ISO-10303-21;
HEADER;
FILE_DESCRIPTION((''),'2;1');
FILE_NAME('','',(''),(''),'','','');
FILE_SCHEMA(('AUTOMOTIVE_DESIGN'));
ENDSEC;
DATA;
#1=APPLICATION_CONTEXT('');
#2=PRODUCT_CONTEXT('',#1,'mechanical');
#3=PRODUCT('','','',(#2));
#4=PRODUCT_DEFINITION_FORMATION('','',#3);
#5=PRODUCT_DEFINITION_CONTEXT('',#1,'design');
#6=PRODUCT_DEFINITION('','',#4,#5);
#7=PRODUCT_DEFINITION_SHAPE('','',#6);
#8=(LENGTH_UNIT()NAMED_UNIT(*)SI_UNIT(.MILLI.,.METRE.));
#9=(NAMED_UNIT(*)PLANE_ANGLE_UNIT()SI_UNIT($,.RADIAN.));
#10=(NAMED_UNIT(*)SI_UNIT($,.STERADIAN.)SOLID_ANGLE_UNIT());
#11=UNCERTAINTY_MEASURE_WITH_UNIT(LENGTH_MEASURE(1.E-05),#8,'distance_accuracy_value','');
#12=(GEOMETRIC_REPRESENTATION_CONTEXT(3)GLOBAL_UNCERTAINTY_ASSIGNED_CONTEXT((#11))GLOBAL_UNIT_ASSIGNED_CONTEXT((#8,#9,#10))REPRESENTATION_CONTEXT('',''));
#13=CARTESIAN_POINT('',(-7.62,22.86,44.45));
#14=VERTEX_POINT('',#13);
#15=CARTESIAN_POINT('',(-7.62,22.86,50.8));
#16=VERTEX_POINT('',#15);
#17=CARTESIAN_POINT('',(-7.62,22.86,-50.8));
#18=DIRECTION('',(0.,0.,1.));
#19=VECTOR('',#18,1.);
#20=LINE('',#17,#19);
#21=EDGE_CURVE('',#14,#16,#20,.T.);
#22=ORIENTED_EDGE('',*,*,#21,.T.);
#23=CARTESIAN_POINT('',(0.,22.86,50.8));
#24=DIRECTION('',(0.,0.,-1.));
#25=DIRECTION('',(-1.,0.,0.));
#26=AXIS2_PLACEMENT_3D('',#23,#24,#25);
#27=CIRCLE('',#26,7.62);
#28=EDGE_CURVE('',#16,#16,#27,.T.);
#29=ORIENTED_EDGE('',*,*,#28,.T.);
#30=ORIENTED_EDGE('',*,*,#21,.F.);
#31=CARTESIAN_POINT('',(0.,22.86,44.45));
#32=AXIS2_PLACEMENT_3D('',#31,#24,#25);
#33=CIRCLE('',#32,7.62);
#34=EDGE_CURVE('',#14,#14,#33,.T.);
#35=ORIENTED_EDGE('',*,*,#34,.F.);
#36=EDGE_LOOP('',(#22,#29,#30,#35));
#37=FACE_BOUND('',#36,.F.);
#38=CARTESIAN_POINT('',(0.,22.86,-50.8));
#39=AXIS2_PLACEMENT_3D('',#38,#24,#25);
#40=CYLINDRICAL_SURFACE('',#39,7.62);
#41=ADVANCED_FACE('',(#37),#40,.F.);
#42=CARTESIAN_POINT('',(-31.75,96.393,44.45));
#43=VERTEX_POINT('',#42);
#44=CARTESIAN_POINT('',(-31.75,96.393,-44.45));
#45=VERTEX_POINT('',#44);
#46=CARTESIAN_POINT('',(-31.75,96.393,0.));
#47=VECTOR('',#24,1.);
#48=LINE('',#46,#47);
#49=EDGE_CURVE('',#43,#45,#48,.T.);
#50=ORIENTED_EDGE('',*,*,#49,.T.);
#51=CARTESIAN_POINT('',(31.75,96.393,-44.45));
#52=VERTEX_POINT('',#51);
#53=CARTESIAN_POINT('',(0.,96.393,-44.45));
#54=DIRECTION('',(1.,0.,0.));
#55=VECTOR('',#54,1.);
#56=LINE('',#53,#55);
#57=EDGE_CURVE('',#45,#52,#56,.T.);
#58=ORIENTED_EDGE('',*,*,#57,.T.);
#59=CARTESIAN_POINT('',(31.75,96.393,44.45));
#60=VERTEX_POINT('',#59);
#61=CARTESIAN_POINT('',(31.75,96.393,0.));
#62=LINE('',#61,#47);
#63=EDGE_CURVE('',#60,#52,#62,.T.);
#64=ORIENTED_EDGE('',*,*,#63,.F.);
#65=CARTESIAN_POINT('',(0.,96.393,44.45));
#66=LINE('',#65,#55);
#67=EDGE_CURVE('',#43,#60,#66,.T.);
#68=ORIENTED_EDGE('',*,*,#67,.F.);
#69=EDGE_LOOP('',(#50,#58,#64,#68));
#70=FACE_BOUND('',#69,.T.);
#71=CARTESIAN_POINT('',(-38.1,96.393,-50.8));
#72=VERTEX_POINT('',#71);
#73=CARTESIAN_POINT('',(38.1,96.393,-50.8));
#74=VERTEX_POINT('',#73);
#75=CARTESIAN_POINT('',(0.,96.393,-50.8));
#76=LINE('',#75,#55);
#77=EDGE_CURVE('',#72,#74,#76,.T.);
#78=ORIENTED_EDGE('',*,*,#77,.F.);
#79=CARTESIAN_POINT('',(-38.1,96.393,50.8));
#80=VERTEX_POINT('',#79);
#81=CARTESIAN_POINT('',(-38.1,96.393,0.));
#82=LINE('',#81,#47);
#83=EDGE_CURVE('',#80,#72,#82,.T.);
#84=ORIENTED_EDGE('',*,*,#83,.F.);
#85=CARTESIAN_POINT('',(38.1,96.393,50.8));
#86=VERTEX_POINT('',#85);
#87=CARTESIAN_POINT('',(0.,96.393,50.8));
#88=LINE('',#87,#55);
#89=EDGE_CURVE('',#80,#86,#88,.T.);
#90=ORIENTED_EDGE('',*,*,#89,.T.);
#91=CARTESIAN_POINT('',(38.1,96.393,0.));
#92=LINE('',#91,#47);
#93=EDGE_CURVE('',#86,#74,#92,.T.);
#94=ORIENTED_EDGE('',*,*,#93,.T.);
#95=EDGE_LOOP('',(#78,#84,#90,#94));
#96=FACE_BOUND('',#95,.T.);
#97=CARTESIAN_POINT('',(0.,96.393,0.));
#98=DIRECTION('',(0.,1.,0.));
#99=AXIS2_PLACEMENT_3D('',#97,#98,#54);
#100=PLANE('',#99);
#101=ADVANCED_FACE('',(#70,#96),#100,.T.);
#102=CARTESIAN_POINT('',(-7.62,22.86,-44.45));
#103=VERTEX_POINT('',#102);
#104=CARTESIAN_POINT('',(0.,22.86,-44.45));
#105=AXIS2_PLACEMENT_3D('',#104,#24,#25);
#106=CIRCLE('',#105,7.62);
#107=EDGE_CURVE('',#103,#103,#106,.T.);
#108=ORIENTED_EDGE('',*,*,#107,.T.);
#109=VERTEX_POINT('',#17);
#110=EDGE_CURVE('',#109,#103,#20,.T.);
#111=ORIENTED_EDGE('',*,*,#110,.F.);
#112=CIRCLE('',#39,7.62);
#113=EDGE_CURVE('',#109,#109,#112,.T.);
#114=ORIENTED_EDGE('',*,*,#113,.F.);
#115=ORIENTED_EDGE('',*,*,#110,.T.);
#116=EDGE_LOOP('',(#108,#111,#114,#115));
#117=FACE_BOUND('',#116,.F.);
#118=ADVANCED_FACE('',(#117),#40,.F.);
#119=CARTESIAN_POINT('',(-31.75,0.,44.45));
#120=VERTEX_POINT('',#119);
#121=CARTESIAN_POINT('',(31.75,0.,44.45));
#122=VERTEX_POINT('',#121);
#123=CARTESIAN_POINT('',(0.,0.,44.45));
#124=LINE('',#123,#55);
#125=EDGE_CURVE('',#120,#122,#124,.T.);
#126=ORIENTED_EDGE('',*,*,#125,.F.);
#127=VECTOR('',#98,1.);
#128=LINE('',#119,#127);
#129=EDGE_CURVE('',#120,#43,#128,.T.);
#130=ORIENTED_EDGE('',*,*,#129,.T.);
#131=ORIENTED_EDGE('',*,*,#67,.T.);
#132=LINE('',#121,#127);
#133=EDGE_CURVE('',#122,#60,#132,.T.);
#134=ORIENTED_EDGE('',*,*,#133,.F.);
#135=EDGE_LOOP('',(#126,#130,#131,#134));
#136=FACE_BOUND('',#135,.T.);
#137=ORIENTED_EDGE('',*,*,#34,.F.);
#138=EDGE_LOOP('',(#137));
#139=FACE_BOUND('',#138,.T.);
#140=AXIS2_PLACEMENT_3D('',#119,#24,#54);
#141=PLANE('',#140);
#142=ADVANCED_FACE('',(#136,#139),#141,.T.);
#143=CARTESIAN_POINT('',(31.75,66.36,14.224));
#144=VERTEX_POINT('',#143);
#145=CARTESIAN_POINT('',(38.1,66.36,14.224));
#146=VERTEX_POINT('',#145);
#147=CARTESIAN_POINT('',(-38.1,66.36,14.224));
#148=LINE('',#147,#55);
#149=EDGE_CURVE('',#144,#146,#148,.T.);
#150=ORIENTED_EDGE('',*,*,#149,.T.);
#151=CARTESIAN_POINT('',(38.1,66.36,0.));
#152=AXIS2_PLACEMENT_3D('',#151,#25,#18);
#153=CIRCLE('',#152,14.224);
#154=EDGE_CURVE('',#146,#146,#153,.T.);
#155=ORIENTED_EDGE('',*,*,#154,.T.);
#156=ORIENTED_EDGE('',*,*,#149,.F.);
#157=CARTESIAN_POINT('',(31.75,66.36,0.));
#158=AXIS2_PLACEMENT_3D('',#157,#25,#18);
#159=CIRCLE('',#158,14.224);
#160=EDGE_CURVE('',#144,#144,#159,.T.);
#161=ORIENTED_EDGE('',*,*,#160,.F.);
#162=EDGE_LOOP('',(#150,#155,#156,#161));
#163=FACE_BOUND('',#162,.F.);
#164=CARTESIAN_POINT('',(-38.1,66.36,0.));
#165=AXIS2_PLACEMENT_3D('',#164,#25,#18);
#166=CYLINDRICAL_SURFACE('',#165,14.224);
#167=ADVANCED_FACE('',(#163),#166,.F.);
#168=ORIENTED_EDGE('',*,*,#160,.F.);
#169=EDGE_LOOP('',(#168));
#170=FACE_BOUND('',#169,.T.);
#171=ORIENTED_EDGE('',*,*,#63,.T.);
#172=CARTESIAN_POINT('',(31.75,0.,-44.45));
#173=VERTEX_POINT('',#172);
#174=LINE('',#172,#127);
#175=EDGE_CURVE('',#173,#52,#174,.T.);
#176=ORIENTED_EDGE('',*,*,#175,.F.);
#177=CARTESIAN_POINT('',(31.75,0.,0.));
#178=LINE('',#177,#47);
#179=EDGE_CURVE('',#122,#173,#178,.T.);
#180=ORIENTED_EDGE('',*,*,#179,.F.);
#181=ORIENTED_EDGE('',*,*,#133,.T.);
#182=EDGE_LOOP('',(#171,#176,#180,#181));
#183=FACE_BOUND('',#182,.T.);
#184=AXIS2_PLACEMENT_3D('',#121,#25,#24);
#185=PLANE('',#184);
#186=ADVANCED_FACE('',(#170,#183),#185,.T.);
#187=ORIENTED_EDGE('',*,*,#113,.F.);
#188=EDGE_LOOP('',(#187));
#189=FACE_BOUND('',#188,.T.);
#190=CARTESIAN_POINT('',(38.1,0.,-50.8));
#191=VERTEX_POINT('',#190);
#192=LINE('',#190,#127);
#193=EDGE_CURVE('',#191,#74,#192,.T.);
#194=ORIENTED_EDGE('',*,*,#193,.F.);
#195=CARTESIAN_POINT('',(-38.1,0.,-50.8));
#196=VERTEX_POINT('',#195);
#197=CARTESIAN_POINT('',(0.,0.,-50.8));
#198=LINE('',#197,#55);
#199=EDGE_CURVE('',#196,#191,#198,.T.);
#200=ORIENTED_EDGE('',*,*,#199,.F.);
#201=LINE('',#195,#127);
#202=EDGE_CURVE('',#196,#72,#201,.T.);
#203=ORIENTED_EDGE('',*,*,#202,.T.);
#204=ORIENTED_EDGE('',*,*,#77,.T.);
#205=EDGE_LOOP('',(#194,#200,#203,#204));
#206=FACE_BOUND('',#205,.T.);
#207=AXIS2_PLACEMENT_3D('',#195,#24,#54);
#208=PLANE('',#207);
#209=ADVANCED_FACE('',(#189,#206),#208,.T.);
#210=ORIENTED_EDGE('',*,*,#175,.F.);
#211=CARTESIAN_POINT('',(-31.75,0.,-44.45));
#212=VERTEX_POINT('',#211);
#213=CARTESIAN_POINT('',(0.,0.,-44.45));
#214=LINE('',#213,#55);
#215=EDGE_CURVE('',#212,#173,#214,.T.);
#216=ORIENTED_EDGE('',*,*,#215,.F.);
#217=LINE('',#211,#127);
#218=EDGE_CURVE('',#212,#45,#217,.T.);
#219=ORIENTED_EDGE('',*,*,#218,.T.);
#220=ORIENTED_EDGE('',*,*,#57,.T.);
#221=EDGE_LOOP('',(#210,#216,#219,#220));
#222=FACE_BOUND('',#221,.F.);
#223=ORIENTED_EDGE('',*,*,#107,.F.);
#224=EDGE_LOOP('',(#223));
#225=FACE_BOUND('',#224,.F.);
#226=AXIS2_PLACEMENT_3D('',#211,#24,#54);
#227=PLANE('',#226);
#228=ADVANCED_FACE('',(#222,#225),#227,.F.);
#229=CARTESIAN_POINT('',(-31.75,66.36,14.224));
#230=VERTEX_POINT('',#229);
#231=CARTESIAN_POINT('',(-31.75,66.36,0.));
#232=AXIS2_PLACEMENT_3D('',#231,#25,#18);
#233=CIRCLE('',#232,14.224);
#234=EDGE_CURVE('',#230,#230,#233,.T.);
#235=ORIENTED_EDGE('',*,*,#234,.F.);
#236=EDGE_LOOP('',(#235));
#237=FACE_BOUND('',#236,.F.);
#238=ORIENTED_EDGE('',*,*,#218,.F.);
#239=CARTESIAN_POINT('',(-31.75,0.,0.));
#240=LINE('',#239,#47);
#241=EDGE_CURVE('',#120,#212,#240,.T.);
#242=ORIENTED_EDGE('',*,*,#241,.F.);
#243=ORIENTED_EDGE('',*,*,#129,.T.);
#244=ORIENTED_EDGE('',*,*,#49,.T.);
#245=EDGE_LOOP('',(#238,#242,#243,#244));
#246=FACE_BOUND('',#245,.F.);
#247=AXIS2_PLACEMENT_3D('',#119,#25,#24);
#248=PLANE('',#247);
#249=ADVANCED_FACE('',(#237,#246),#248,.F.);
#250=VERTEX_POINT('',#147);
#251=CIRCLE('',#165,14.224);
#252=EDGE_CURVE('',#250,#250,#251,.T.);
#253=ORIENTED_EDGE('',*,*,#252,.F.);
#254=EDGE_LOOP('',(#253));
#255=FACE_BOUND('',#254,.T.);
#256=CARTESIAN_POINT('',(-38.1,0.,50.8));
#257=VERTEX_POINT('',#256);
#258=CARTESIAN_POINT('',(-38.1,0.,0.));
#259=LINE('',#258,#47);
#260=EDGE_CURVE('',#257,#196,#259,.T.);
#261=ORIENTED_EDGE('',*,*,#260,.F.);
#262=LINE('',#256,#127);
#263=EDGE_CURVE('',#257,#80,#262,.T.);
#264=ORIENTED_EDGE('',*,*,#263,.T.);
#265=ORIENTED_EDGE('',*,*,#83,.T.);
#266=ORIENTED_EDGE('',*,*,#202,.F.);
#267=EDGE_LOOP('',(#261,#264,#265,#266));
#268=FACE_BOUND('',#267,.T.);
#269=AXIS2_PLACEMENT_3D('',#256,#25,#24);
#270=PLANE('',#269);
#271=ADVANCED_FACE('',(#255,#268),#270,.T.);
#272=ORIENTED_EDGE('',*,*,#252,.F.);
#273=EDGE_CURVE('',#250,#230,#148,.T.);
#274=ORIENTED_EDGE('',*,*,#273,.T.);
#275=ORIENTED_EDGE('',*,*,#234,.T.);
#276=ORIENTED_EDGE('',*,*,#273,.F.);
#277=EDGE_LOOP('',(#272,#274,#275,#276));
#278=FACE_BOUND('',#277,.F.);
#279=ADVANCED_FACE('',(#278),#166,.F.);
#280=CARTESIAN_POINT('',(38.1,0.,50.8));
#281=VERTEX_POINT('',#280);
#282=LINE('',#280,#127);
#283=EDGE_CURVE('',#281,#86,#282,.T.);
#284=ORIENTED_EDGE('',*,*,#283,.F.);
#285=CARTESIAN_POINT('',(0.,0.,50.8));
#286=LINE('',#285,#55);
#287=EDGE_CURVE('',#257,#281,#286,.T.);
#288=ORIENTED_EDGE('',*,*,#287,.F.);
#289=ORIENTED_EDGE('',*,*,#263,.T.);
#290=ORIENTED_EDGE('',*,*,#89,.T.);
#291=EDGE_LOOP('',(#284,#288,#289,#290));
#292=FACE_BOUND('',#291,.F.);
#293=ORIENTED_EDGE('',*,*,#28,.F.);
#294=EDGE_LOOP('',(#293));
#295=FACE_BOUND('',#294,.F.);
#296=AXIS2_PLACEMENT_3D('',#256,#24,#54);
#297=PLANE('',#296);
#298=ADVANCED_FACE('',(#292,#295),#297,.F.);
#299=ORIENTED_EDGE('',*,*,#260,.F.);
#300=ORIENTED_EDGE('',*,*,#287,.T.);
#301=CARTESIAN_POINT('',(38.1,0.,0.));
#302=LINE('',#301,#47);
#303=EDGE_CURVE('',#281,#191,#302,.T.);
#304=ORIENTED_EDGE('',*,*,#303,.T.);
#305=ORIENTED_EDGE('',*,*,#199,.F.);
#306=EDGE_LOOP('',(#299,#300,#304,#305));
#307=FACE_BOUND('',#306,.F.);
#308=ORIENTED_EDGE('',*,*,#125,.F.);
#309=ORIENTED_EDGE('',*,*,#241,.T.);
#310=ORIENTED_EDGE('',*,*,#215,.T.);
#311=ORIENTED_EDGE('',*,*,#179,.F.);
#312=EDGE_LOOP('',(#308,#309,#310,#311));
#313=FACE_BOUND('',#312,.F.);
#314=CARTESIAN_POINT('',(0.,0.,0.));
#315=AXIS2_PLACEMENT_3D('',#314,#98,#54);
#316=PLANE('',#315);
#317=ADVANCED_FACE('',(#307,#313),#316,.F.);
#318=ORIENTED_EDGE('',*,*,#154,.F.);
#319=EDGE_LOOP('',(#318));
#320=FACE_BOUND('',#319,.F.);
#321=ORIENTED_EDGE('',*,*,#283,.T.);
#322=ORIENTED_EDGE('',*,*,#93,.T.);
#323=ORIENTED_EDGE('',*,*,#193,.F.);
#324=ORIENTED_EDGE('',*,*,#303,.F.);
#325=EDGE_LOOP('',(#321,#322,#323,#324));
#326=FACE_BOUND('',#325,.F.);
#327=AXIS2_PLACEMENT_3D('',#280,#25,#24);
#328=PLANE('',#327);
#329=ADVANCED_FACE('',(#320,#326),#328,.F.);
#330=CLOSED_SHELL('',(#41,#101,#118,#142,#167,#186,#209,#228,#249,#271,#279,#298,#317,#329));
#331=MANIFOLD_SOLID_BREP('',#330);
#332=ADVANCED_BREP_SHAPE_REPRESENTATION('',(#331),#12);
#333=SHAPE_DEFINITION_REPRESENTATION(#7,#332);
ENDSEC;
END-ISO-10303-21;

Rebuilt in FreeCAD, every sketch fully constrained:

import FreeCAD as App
import Part
import Sketcher

V = App.Vector
Q = App.Units.Quantity


def add_polygon(sketch, points):
    """Adds a closed chain of lines whose ends are joined by coincident constraints."""
    first, n = sketch.GeometryCount, len(points)
    for a, b in zip(points, points[1:] + points[:1]):
        sketch.addGeometry(Part.LineSegment(App.Vector(*a, 0), App.Vector(*b, 0)), False)
    for i in range(n):
        sketch.addConstraint(Sketcher.Constraint("Coincident", first + i, 2, first + (i + 1) % n, 1))

doc = App.newDocument("Part")
body = doc.addObject("PartDesign::Body", "Body")

sketch1 = body.newObject("Sketcher::SketchObject", "Sketch")
sketch1.AttachmentSupport = (doc.getObject("XZ_Plane"), [""])
sketch1.MapMode = "FlatFace"
add_polygon(sketch1, [(-38, -51), (-38, 51), (38, 51), (38, -51)])
add_polygon(sketch1, [(32, 44), (-32, 44), (-32, -44), (32, -44)])
sketch1.addConstraint(Sketcher.Constraint("Vertical", 0))
sketch1.addConstraint(Sketcher.Constraint("Horizontal", 1))
sketch1.addConstraint(Sketcher.Constraint("Vertical", 2))
sketch1.addConstraint(Sketcher.Constraint("Horizontal", 3))
sketch1.addConstraint(Sketcher.Constraint("Horizontal", 4))
sketch1.addConstraint(Sketcher.Constraint("Vertical", 5))
sketch1.addConstraint(Sketcher.Constraint("Horizontal", 6))
sketch1.addConstraint(Sketcher.Constraint("Vertical", 7))
sketch1.addConstraint(Sketcher.Constraint("Symmetric", 0, 2, 2, 2, -1, 1))
sketch1.addConstraint(Sketcher.Constraint("Symmetric", 4, 2, 6, 2, -1, 1))
sketch1.addConstraint(Sketcher.Constraint("DistanceX", 1, 1, 1, 2, Q("3 in")))
sketch1.addConstraint(Sketcher.Constraint("DistanceY", 0, 1, 0, 2, Q("4 in")))
sketch1.addConstraint(Sketcher.Constraint("DistanceX", 4, 2, 4, 1, Q("2.5 in")))
sketch1.addConstraint(Sketcher.Constraint("DistanceY", 5, 2, 5, 1, Q("3.5 in")))
pad1 = body.newObject("PartDesign::Pad", "Pad")
pad1.Profile = sketch1
pad1.Length = Q("3.795 in")
pad1.Reversed = True

sketch2 = body.newObject("Sketcher::SketchObject", "Sketch001")
sketch2.AttachmentSupport = (doc.getObject("XY_Plane"), [""])
sketch2.MapMode = "FlatFace"
sketch2.AttachmentOffset = App.Placement(V(0, 0, -2 * 25.4), App.Rotation())
sketch2.addGeometry(Part.Circle(V(0, 23, 0), V(0, 0, 1), 8), False)
sketch2.addConstraint(Sketcher.Constraint("PointOnObject", 0, 3, -2))
sketch2.addConstraint(Sketcher.Constraint("Diameter", 0, Q("0.6 in")))
sketch2.addConstraint(Sketcher.Constraint("DistanceY", -1, 1, 0, 3, Q("0.9 in")))
pocket1 = body.newObject("PartDesign::Pocket", "Pocket")
pocket1.Profile = sketch2
pocket1.Type = "ThroughAll"
pocket1.Reversed = True

sketch3 = body.newObject("Sketcher::SketchObject", "Sketch002")
sketch3.AttachmentSupport = (doc.getObject("YZ_Plane"), [""])
sketch3.MapMode = "FlatFace"
sketch3.AttachmentOffset = App.Placement(V(0, 0, -1.5 * 25.4), App.Rotation())
sketch3.addGeometry(Part.Circle(V(66, 0, 0), V(0, 0, 1), 14), False)
sketch3.addConstraint(Sketcher.Constraint("PointOnObject", 0, 3, -1))
sketch3.addConstraint(Sketcher.Constraint("Diameter", 0, Q("1.12 in")))
sketch3.addConstraint(Sketcher.Constraint("DistanceX", -1, 1, 0, 3, Q("66.36 mm")))
pocket2 = body.newObject("PartDesign::Pocket", "Pocket001")
pocket2.Profile = sketch3
pocket2.Type = "ThroughAll"
pocket2.Reversed = True

doc.recompute()
